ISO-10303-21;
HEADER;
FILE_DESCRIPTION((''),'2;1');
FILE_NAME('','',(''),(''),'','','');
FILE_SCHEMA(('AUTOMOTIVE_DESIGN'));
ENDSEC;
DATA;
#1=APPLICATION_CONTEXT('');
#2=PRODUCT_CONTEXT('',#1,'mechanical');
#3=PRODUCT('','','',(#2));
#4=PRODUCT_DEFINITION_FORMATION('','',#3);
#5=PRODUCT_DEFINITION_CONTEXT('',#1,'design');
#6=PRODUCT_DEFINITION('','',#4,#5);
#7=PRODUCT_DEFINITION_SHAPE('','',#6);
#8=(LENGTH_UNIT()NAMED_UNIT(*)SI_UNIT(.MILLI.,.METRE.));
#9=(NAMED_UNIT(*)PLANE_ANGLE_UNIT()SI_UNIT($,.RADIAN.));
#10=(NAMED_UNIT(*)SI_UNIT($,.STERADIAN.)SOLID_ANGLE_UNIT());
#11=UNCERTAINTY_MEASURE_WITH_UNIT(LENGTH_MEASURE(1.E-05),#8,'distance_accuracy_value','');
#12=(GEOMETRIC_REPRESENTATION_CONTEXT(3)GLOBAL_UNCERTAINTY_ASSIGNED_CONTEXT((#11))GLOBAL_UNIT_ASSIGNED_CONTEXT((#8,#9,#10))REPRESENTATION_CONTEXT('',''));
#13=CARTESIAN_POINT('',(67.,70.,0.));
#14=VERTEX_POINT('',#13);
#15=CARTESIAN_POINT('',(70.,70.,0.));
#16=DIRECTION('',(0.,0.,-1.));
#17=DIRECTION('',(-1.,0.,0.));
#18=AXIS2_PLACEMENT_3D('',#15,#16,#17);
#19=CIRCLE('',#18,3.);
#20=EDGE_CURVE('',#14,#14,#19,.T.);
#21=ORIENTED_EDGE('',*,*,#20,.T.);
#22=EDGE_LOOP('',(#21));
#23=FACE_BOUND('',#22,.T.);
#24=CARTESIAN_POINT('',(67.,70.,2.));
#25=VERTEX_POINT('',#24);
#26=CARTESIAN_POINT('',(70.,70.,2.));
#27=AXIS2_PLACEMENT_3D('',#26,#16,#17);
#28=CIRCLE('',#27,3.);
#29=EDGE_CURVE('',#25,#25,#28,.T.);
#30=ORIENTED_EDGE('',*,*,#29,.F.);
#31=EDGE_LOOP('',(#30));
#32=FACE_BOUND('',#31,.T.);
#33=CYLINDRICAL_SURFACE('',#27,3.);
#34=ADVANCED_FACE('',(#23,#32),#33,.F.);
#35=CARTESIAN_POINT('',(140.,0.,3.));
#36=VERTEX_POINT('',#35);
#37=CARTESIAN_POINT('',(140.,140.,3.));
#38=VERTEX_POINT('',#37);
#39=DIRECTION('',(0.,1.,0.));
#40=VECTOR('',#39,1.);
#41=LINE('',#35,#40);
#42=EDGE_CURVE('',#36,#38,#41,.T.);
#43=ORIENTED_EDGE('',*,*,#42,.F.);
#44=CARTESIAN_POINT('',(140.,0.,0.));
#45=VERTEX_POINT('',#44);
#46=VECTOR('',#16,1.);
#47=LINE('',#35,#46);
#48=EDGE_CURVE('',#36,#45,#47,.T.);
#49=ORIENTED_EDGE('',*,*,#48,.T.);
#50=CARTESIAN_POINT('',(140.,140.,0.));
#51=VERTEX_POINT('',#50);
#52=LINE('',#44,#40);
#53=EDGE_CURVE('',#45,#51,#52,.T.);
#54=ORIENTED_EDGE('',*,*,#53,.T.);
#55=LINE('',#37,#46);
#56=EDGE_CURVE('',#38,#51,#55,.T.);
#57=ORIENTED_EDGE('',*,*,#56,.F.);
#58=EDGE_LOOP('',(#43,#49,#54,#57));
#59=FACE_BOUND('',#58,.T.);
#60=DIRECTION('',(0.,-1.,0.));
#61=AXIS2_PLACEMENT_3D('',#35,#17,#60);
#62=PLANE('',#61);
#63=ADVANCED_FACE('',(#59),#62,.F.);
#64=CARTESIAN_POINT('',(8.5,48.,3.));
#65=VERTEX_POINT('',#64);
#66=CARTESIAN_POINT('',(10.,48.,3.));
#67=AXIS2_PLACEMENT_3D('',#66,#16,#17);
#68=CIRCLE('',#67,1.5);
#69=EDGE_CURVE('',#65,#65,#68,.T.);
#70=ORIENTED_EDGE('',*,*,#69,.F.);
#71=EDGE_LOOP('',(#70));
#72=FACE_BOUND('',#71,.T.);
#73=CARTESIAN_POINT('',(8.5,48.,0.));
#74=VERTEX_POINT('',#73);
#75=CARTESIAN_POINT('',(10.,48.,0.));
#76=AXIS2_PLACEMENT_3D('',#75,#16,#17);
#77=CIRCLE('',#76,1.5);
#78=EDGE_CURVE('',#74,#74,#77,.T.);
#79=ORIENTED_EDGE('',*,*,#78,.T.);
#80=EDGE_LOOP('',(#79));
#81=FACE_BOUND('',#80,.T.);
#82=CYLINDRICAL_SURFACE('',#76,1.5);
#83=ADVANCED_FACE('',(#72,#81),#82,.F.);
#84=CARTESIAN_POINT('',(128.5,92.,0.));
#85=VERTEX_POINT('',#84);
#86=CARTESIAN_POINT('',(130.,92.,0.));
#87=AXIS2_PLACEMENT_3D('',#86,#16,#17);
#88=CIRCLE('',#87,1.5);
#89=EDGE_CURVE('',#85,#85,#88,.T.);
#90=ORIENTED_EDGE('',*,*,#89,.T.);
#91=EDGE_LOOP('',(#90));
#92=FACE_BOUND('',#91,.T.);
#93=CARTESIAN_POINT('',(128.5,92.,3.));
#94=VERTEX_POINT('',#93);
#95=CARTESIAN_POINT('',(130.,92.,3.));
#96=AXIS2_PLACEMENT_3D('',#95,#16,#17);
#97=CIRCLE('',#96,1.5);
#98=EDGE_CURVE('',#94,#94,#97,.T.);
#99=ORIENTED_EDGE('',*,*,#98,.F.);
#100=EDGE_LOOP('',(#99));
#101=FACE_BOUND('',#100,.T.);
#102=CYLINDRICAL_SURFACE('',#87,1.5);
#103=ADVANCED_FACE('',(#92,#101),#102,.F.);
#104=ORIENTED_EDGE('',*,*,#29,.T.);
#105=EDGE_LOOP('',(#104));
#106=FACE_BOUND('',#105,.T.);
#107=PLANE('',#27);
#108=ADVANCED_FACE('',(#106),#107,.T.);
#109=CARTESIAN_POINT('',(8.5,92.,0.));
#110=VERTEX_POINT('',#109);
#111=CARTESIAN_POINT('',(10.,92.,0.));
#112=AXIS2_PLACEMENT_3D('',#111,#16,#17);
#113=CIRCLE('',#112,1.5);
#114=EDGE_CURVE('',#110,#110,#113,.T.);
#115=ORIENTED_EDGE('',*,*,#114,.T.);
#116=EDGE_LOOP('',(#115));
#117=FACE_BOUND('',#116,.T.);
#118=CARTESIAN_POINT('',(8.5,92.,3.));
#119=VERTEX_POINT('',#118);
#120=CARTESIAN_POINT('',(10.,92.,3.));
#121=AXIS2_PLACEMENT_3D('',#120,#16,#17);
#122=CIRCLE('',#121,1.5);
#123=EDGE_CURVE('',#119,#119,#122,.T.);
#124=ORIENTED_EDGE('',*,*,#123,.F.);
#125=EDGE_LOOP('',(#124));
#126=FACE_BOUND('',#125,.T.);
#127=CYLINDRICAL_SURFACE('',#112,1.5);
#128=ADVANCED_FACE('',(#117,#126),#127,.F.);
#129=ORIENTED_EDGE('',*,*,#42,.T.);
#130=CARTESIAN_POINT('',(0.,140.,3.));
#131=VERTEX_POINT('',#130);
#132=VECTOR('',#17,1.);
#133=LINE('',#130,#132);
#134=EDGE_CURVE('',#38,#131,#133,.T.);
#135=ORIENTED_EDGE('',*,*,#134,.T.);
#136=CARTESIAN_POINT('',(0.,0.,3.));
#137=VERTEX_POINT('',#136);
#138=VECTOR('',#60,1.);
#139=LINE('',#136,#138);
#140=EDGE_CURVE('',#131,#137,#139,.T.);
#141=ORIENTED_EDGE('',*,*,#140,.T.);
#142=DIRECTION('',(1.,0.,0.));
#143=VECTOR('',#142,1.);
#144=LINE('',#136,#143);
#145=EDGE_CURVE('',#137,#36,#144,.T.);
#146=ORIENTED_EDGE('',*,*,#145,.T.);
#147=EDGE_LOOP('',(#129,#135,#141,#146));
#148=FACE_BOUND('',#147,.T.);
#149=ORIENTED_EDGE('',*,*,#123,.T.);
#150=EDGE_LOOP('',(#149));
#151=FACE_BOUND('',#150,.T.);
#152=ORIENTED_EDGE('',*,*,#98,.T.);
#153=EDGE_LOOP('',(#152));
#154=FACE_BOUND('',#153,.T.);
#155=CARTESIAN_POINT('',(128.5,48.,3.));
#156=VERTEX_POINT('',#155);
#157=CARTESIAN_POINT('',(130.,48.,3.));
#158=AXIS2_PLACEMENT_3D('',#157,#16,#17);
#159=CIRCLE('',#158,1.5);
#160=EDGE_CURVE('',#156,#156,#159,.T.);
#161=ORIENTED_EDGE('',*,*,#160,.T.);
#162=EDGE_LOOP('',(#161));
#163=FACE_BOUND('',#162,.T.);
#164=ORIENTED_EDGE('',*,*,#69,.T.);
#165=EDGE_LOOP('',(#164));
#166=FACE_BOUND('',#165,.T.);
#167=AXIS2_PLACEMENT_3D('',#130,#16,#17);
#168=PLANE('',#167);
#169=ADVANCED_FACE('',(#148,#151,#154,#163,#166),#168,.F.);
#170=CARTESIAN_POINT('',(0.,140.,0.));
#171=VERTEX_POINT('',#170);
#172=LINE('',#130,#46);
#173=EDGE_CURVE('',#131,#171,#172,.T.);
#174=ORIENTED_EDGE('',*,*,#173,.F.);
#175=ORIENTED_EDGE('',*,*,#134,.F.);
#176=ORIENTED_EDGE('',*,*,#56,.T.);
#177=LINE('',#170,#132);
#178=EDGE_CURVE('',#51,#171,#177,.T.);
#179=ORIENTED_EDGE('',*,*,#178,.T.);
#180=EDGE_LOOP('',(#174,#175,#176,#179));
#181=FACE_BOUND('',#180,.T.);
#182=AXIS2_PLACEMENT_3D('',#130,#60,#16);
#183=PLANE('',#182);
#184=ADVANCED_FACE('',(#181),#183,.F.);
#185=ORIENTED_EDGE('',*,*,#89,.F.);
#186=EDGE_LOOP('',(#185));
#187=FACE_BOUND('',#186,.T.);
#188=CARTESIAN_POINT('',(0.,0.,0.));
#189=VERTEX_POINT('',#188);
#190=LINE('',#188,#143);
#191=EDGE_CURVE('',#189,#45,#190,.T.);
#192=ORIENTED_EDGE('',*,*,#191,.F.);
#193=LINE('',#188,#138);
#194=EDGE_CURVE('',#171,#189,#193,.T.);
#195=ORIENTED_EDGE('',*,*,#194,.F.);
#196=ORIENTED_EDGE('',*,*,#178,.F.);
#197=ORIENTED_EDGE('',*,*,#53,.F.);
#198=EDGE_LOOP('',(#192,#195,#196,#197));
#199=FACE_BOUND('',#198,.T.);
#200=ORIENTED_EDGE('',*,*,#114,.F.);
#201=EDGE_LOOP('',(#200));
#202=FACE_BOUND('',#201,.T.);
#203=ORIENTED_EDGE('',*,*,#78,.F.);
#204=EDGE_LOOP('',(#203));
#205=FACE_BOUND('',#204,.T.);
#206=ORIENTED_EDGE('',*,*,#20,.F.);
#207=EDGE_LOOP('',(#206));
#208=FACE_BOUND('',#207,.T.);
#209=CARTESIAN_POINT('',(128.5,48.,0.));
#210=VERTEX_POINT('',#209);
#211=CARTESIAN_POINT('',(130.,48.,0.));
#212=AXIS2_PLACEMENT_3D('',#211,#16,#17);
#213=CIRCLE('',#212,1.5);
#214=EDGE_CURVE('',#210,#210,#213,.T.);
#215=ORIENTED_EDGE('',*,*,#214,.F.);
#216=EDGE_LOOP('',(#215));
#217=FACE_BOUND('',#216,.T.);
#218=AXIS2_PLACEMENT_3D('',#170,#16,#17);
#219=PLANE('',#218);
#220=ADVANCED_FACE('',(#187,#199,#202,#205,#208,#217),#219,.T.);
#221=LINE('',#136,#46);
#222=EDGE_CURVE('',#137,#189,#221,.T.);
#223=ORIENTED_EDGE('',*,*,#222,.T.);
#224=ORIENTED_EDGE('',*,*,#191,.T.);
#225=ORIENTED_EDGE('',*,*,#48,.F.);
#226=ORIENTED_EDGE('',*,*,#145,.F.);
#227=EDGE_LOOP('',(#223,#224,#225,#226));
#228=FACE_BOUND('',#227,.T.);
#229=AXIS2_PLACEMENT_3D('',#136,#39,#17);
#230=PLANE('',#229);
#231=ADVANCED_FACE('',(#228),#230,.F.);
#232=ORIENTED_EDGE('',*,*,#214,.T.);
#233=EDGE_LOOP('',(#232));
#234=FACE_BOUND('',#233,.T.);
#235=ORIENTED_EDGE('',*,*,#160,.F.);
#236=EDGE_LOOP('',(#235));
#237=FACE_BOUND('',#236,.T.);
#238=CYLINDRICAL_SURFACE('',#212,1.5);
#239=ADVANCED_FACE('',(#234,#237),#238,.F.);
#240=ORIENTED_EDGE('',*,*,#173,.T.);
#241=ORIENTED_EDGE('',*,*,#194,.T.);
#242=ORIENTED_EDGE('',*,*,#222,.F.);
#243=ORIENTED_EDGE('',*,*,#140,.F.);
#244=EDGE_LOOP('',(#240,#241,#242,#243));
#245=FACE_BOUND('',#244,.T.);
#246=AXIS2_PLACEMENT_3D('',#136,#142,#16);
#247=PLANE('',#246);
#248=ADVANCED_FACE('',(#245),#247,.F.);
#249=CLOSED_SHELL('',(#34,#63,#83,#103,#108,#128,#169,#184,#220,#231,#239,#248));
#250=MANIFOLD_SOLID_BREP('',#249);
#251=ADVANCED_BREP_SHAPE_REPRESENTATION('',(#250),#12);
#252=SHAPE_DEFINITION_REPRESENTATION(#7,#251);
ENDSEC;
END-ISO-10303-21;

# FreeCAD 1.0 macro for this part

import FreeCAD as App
import Part
import Sketcher

V = App.Vector

doc = App.newDocument("Part")
body = doc.addObject("PartDesign::Body", "Body")

# Sketch on XY plane
sketch1 = body.newObject("Sketcher::SketchObject", "Sketch")
sketch1.AttachmentSupport = (doc.getObject("XY_Plane"), [""])
sketch1.MapMode = "FlatFace"
sketch1.addGeometry([
    Part.LineSegment(V(0, 140, 0), V(0, 0, 0)),
    Part.LineSegment(V(0, 0, 0), V(140, 0, 0)),
    Part.LineSegment(V(140, 0, 0), V(140, 140, 0)),
    Part.LineSegment(V(140, 140, 0), V(0, 140, 0)),
], False)
sketch1.addConstraint([
    Sketcher.Constraint("Coincident", 0, 2, 1, 1),
    Sketcher.Constraint("Coincident", 1, 2, 2, 1),
    Sketcher.Constraint("Coincident", 2, 2, 3, 1),
    Sketcher.Constraint("Coincident", 3, 2, 0, 1),
    Sketcher.Constraint("Vertical", 0),
    Sketcher.Constraint("Horizontal", 1),
    Sketcher.Constraint("Vertical", 2),
    Sketcher.Constraint("Horizontal", 3),
    Sketcher.Constraint("Coincident", 0, 2, -1, 1),
    Sketcher.Constraint("Equal", 3, 0),
    Sketcher.Constraint("DistanceX", 1, 1, 1, 2, 140.0),
])
pad1 = body.newObject("PartDesign::Pad", "Pad")
pad1.Profile = sketch1
pad1.Length = 3

# Sketch on XY plane
sketch2 = body.newObject("Sketcher::SketchObject", "Sketch001")
sketch2.AttachmentSupport = (doc.getObject("XY_Plane"), [""])
sketch2.MapMode = "FlatFace"
sketch2.addGeometry([
    Part.Circle(V(130, 92, 0), V(0, 0, 1), 1.5),
    Part.Circle(V(130, 48, 0), V(0, 0, 1), 1.5),
    Part.Circle(V(10, 92, 0), V(0, 0, 1), 1.5),
    Part.Circle(V(10, 48, 0), V(0, 0, 1), 1.5),
], False)
sketch2.addConstraint([
    Sketcher.Constraint("Equal", 0, 1),
    Sketcher.Constraint("Equal", 1, 2),
    Sketcher.Constraint("Equal", 2, 3),
    Sketcher.Constraint("Horizontal", 0, 3, 2, 3),
    Sketcher.Constraint("Horizontal", 1, 3, 3, 3),
    Sketcher.Constraint("Vertical", 0, 3, 1, 3),
    Sketcher.Constraint("Vertical", 2, 3, 3, 3),
    Sketcher.Constraint("Diameter", 0, 3.0),
    Sketcher.Constraint("DistanceX", -1, 1, 0, 3, 130.0),
    Sketcher.Constraint("DistanceY", -1, 1, 0, 3, 92.0),
    Sketcher.Constraint("DistanceY", -1, 1, 1, 3, 48.0),
    Sketcher.Constraint("DistanceX", -1, 1, 2, 3, 10.0),
])
doc.recompute()
hole = body.newObject("PartDesign::Hole", "Hole")
hole.Profile = sketch2
hole.ThreadType = "None"
hole.Diameter = 3
hole.DepthType = "ThroughAll"
hole.Reversed = True

# Sketch on XY plane
sketch3 = body.newObject("Sketcher::SketchObject", "Sketch002")
sketch3.AttachmentSupport = (doc.getObject("XY_Plane"), [""])
sketch3.MapMode = "FlatFace"
sketch3.addGeometry(Part.Circle(V(70, 70, 0), V(0, 0, 1), 3), False)
sketch3.addConstraint([
    Sketcher.Constraint("Diameter", 0, 6.0),
    Sketcher.Constraint("DistanceX", -1, 1, 0, 3, 70.0),
    Sketcher.Constraint("DistanceY", -1, 1, 0, 3, 70.0),
])
pocket1 = body.newObject("PartDesign::Pocket", "Pocket")
pocket1.Profile = sketch3
pocket1.Length = 2
pocket1.Reversed = True

doc.recompute()
